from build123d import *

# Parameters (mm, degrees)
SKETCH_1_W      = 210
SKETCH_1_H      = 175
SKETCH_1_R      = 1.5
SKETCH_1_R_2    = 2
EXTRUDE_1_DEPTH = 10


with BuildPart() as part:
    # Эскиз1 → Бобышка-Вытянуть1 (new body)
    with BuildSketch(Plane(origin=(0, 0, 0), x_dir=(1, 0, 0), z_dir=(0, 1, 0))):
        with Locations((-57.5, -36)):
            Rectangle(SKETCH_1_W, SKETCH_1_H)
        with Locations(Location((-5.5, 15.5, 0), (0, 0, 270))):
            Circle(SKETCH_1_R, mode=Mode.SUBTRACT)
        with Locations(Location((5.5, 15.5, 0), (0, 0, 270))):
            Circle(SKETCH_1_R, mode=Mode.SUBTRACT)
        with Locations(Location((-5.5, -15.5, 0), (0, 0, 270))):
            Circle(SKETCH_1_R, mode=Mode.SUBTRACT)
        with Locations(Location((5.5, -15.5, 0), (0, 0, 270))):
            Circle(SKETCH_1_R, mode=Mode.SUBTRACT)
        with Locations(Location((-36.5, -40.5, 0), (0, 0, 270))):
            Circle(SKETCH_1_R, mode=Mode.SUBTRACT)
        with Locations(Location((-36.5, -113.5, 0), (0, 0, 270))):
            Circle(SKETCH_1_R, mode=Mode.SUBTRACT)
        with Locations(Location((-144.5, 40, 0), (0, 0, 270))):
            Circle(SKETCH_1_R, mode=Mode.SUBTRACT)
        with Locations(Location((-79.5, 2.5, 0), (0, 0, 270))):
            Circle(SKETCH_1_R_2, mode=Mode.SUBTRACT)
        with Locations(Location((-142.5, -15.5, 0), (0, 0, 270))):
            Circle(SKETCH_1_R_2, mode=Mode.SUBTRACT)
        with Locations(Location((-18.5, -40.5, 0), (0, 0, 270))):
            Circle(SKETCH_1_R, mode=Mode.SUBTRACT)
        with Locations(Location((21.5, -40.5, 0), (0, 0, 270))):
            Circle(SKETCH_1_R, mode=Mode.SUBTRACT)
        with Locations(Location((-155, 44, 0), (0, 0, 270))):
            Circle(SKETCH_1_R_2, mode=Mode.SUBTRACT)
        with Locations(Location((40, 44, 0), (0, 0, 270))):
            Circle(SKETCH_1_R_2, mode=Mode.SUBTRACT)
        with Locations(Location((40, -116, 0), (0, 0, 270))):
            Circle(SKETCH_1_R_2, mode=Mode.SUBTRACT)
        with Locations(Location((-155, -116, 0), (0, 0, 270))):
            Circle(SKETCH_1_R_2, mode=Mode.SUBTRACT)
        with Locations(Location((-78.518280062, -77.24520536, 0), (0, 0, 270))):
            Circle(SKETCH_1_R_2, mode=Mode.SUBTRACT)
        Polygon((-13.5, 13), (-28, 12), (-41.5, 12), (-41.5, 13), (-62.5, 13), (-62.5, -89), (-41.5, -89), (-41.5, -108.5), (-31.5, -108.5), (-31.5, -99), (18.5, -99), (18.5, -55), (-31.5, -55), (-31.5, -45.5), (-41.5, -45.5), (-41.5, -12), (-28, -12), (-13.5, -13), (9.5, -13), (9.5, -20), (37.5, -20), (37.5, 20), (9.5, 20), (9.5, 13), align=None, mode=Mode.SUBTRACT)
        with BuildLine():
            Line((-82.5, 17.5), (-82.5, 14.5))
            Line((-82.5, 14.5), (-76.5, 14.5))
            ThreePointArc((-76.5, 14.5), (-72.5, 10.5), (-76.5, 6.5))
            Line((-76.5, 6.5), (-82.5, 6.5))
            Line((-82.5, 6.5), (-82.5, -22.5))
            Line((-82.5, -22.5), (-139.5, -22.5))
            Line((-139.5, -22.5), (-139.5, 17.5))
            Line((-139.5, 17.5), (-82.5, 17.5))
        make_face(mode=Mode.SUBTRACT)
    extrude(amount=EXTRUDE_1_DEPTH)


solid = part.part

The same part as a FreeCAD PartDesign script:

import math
import FreeCAD as App
import Part
import Sketcher


def add_polygon(sketch, points):
    """Adds a closed chain of lines whose ends are joined by coincident constraints."""
    first, n = sketch.GeometryCount, len(points)
    for a, b in zip(points, points[1:] + points[:1]):
        sketch.addGeometry(Part.LineSegment(App.Vector(*a, 0), App.Vector(*b, 0)), False)
    for i in range(n):
        sketch.addConstraint(Sketcher.Constraint("Coincident", first + i, 2, first + (i + 1) % n, 1))

doc = App.newDocument("Part")
params = doc.addObject("Spreadsheet::Sheet", "Params")
for row, (alias, value) in enumerate([
    ("sketch1_diameter", "4 mm"),
    ("sketch1_diameter2", "3 mm"),
    ("sketch1_radius", "4 mm"),
    ("sketch1_width", "210 mm"),
    ("sketch1_width2", "23 mm"),
    ("pad1_length", "10 mm"),
], start=1):
    params.set(f"A{row}", alias)
    params.set(f"B{row}", "=" + value)
    params.setAlias(f"B{row}", alias)

body = doc.addObject("PartDesign::Body", "Body")

sketch1 = doc.addObject("Sketcher::SketchObject", "Sketch")
body.addObject(sketch1)
sketch1.AttachmentSupport = (doc.XZ_Plane, [""])
sketch1.MapMode = "FlatFace"
add_polygon(sketch1, [(-162.5, -51.5), (-162.5, 123.5), (47.5, 123.5), (47.5, -51.5)])
sketch1.addGeometry(Part.Circle(App.Vector(-155, 116, 0), App.Vector(0, 0, 1), 2), False)
sketch1.addGeometry(Part.Circle(App.Vector(-78.5, 77.2, 0), App.Vector(0, 0, 1), 2), False)
sketch1.addGeometry(Part.Circle(App.Vector(-36.5, 113.5, 0), App.Vector(0, 0, 1), 1.5), False)
sketch1.addGeometry(Part.Circle(App.Vector(40, 116, 0), App.Vector(0, 0, 1), 2), False)
sketch1.addGeometry(Part.Circle(App.Vector(-36.5, 40.5, 0), App.Vector(0, 0, 1), 1.5), False)
add_polygon(sketch1, [(-28, -12), (-13.5, -13), (9.5, -13), (9.5, -20), (37.5, -20), (37.5, 20), (9.5, 20), (9.5, 13), (-13.5, 13), (-28, 12), (-41.5, 12), (-41.5, 45.5), (-31.5, 45.5), (-31.5, 55), (18.5, 55), (18.5, 99), (-31.5, 99), (-31.5, 108.5), (-41.5, 108.5), (-41.5, 89), (-62.5, 89), (-62.5, -13), (-41.5, -13), (-41.5, -12)])
sketch1.addGeometry(Part.Circle(App.Vector(-18.5, 40.5, 0), App.Vector(0, 0, 1), 1.5), False)
sketch1.addGeometry(Part.Circle(App.Vector(21.5, 40.5, 0), App.Vector(0, 0, 1), 1.5), False)
sketch1.addGeometry(Part.Circle(App.Vector(-142.5, 15.5, 0), App.Vector(0, 0, 1), 2), False)
sketch1.addGeometry(Part.LineSegment(App.Vector(-139.5, -17.5, 0), App.Vector(-82.5, -17.5, 0)), False)
sketch1.addGeometry(Part.LineSegment(App.Vector(-82.5, -17.5, 0), App.Vector(-82.5, -14.5, 0)), False)
sketch1.addGeometry(Part.LineSegment(App.Vector(-82.5, -14.5, 0), App.Vector(-76.5, -14.5, 0)), False)
sketch1.addGeometry(Part.ArcOfCircle(Part.Circle(App.Vector(-76.5, -10.5, 0), App.Vector(0, 0, 1), 4), math.radians(-90), math.radians(90)), False)
sketch1.addGeometry(Part.LineSegment(App.Vector(-76.5, -6.5, 0), App.Vector(-82.5, -6.5, 0)), False)
sketch1.addGeometry(Part.LineSegment(App.Vector(-82.5, -6.5, 0), App.Vector(-82.5, 22.5, 0)), False)
sketch1.addGeometry(Part.LineSegment(App.Vector(-82.5, 22.5, 0), App.Vector(-139.5, 22.5, 0)), False)
sketch1.addGeometry(Part.LineSegment(App.Vector(-139.5, 22.5, 0), App.Vector(-139.5, -17.5, 0)), False)
sketch1.addGeometry(Part.Circle(App.Vector(-79.5, -2.5, 0), App.Vector(0, 0, 1), 2), False)
sketch1.addGeometry(Part.Circle(App.Vector(-155, -44, 0), App.Vector(0, 0, 1), 2), False)
sketch1.addGeometry(Part.Circle(App.Vector(-144.5, -40, 0), App.Vector(0, 0, 1), 1.5), False)
sketch1.addGeometry(Part.Circle(App.Vector(-5.5, 15.5, 0), App.Vector(0, 0, 1), 1.5), False)
sketch1.addGeometry(Part.Circle(App.Vector(5.5, 15.5, 0), App.Vector(0, 0, 1), 1.5), False)
sketch1.addGeometry(Part.Circle(App.Vector(-5.5, -15.5, 0), App.Vector(0, 0, 1), 1.5), False)
sketch1.addGeometry(Part.Circle(App.Vector(5.5, -15.5, 0), App.Vector(0, 0, 1), 1.5), False)
sketch1.addGeometry(Part.Circle(App.Vector(40, -44, 0), App.Vector(0, 0, 1), 2), False)
sketch1.addConstraint(Sketcher.Constraint("Coincident", 36, 2, 37, 1))
sketch1.addConstraint(Sketcher.Constraint("Coincident", 37, 2, 38, 1))
sketch1.addConstraint(Sketcher.Constraint("Tangent", 38, 2, 39, 1))
sketch1.addConstraint(Sketcher.Constraint("Tangent", 39, 2, 40, 1))
sketch1.addConstraint(Sketcher.Constraint("Coincident", 40, 2, 41, 1))
sketch1.addConstraint(Sketcher.Constraint("Coincident", 41, 2, 42, 1))
sketch1.addConstraint(Sketcher.Constraint("Coincident", 42, 2, 43, 1))
sketch1.addConstraint(Sketcher.Constraint("Coincident", 43, 2, 36, 1))
sketch1.addConstraint(Sketcher.Constraint("Vertical", 0))
sketch1.addConstraint(Sketcher.Constraint("Horizontal", 1))
sketch1.addConstraint(Sketcher.Constraint("Vertical", 2))
sketch1.addConstraint(Sketcher.Constraint("Horizontal", 3))
sketch1.addConstraint(Sketcher.Constraint("Horizontal", 10))
sketch1.addConstraint(Sketcher.Constraint("Vertical", 11))
sketch1.addConstraint(Sketcher.Constraint("Horizontal", 12))
sketch1.addConstraint(Sketcher.Constraint("Vertical", 13))
sketch1.addConstraint(Sketcher.Constraint("Horizontal", 14))
sketch1.addConstraint(Sketcher.Constraint("Vertical", 15))
sketch1.addConstraint(Sketcher.Constraint("Horizontal", 16))
sketch1.addConstraint(Sketcher.Constraint("Horizontal", 18))
sketch1.addConstraint(Sketcher.Constraint("Vertical", 19))
sketch1.addConstraint(Sketcher.Constraint("Horizontal", 20))
sketch1.addConstraint(Sketcher.Constraint("Vertical", 21))
sketch1.addConstraint(Sketcher.Constraint("Horizontal", 22))
sketch1.addConstraint(Sketcher.Constraint("Vertical", 23))
sketch1.addConstraint(Sketcher.Constraint("Horizontal", 24))
sketch1.addConstraint(Sketcher.Constraint("Vertical", 25))
sketch1.addConstraint(Sketcher.Constraint("Horizontal", 26))
sketch1.addConstraint(Sketcher.Constraint("Vertical", 27))
sketch1.addConstraint(Sketcher.Constraint("Horizontal", 28))
sketch1.addConstraint(Sketcher.Constraint("Vertical", 29))
sketch1.addConstraint(Sketcher.Constraint("Horizontal", 30))
sketch1.addConstraint(Sketcher.Constraint("Vertical", 31))
sketch1.addConstraint(Sketcher.Constraint("Horizontal", 32))
sketch1.addConstraint(Sketcher.Constraint("Horizontal", 36))
sketch1.addConstraint(Sketcher.Constraint("Vertical", 37))
sketch1.addConstraint(Sketcher.Constraint("Horizontal", 38))
sketch1.addConstraint(Sketcher.Constraint("Horizontal", 40))
sketch1.addConstraint(Sketcher.Constraint("Vertical", 41))
sketch1.addConstraint(Sketcher.Constraint("Horizontal", 42))
sketch1.addConstraint(Sketcher.Constraint("Vertical", 43))
sketch1.addConstraint(Sketcher.Constraint("Equal", 4, 5))
sketch1.addConstraint(Sketcher.Constraint("Equal", 5, 7))
sketch1.addConstraint(Sketcher.Constraint("Equal", 6, 8))
sketch1.addConstraint(Sketcher.Constraint("Equal", 8, 33))
sketch1.addConstraint(Sketcher.Constraint("Equal", 33, 34))
sketch1.addConstraint(Sketcher.Constraint("Equal", 7, 35))
sketch1.addConstraint(Sketcher.Constraint("Equal", 35, 44))
sketch1.addConstraint(Sketcher.Constraint("Equal", 44, 45))
sketch1.addConstraint(Sketcher.Constraint("Equal", 34, 46))
sketch1.addConstraint(Sketcher.Constraint("Equal", 46, 47))
sketch1.addConstraint(Sketcher.Constraint("Equal", 47, 48))
sketch1.addConstraint(Sketcher.Constraint("Equal", 48, 49))
sketch1.addConstraint(Sketcher.Constraint("Equal", 49, 50))
sketch1.addConstraint(Sketcher.Constraint("Equal", 45, 51))
sketch1.addConstraint(Sketcher.Constraint("Symmetric", 48, 3, 49, 3, -1, 1))
sketch1.addConstraint(Sketcher.Constraint("Symmetric", 47, 3, 50, 3, -1, 1))
sketch1.addConstraint(Sketcher.Constraint("Symmetric", 47, 3, 48, 3, -2))
sketch1.addConstraint(Sketcher.Constraint("Symmetric", 11, 2, 14, 2, -1))
sketch1.addConstraint(Sketcher.Constraint("Symmetric", 9, 2, 16, 2, -1))
sketch1.addConstraint(Sketcher.Constraint("Symmetric", 18, 2, 31, 2, -1))
sketch1.addConstraint(Sketcher.Constraint("Horizontal", 4, 3, 7, 3))
sketch1.addConstraint(Sketcher.Constraint("Horizontal", 8, 3, 33, 3))
sketch1.addConstraint(Sketcher.Constraint("Horizontal", 33, 3, 34, 3))
sketch1.addConstraint(Sketcher.Constraint("Horizontal", 35, 3, 47, 3))
sketch1.addConstraint(Sketcher.Constraint("Horizontal", 45, 3, 51, 3))
sketch1.addConstraint(Sketcher.Constraint("Horizontal", 10, 2, 29, 2))
sketch1.addConstraint(Sketcher.Constraint("Vertical", 6, 3, 8, 3))
sketch1.addConstraint(Sketcher.Constraint("Vertical", 4, 3, 45, 3))
sketch1.addConstraint(Sketcher.Constraint("Vertical", 7, 3, 51, 3))
sketch1.addConstraint(Sketcher.Constraint("Vertical", 21, 2, 24, 2))
sketch1.addConstraint(Sketcher.Constraint("Vertical", 19, 2, 26, 2))
sketch1.addConstraint(Sketcher.Constraint("Vertical", 17, 2, 32, 2))
sketch1.addConstraint(Sketcher.Constraint("Vertical", 37, 2, 40, 2))
sketch1.addConstraint(Sketcher.Constraint("Equal", 21, 25))
sketch1.addConstraint(Sketcher.Constraint("Equal", 13, 43))
sketch1.addConstraint(Sketcher.Constraint("Diameter", 4, 4.0))
sketch1.addConstraint(Sketcher.Constraint("Diameter", 6, 3.0))
sketch1.addConstraint(Sketcher.Constraint("Radius", 39, 4.0))
sketch1.addConstraint(Sketcher.Constraint("DistanceX", 1, 1, 1, 2, 210.0))
sketch1.addConstraint(Sketcher.Constraint("DistanceX", 10, 1, 10, 2, 23.0))
sketch1.addConstraint(Sketcher.Constraint("DistanceX", 12, 1, 12, 2, 28.0))
sketch1.addConstraint(Sketcher.Constraint("DistanceX", 20, 1, 20, 2, 10.0))
sketch1.addConstraint(Sketcher.Constraint("DistanceX", 22, 1, 22, 2, 50.0))
sketch1.addConstraint(Sketcher.Constraint("DistanceX", 28, 2, 28, 1, 21.0))
sketch1.addConstraint(Sketcher.Constraint("DistanceX", 36, 1, 36, 2, 57.0))
sketch1.addConstraint(Sketcher.Constraint("DistanceX", 38, 1, 38, 2, 6.0))
sketch1.addConstraint(Sketcher.Constraint("DistanceY", 0, 1, 0, 2, 175.0))
sketch1.addConstraint(Sketcher.Constraint("DistanceY", 11, 2, 11, 1, 7.0))
sketch1.addConstraint(Sketcher.Constraint("DistanceY", 13, 1, 13, 2, 40.0))
sketch1.addConstraint(Sketcher.Constraint("DistanceY", 23, 1, 23, 2, 44.0))
sketch1.addConstraint(Sketcher.Constraint("DistanceY", 29, 2, 29, 1, 102.0))
sketch1.addConstraint(Sketcher.Constraint("DistanceY", 31, 1, 31, 2, 1.0))
sketch1.addConstraint(Sketcher.Constraint("DistanceY", 37, 1, 37, 2, 3.0))
sketch1.addConstraint(Sketcher.Constraint("DistanceX", 18, 2, 18, 1, 13.5))
sketch1.addConstraint(Sketcher.Constraint("DistanceY", 19, 1, 19, 2, 33.5))
sketch1.addConstraint(Sketcher.Constraint("DistanceY", 21, 1, 21, 2, 9.5))
sketch1.addConstraint(Sketcher.Constraint("DistanceX", 4, 3, -1, 1, 155.0))
sketch1.addConstraint(Sketcher.Constraint("DistanceY", -1, 1, 4, 3, 116.0))
sketch1.addConstraint(Sketcher.Constraint("DistanceX", -1, 1, 7, 3, 40.0))
sketch1.addConstraint(Sketcher.Constraint("DistanceY", 45, 3, -1, 1, 44.0))
sketch1.addConstraint(Sketcher.Constraint("DistanceY", 46, 3, -1, 1, 40.0))
sketch1.addConstraint(Sketcher.Constraint("DistanceX", 17, 2, -1, 1, 28.0))
sketch1.addConstraint(Sketcher.Constraint("DistanceY", 8, 3, 6, 3, 73.0))
sketch1.addConstraint(Sketcher.Constraint("DistanceX", 8, 3, 33, 3, 18.0))
sketch1.addConstraint(Sketcher.Constraint("DistanceX", 33, 3, 34, 3, 40.0))
sketch1.addConstraint(Sketcher.Constraint("DistanceX", 35, 3, 8, 3, 106.0))
sketch1.addConstraint(Sketcher.Constraint("DistanceY", 35, 3, 8, 3, 25.0))
sketch1.addConstraint(Sketcher.Constraint("DistanceX", 39, 3, 8, 3, 40.0))
sketch1.addConstraint(Sketcher.Constraint("DistanceY", 39, 3, 8, 3, 51.0))
sketch1.addConstraint(Sketcher.Constraint("DistanceX", 44, 3, 39, 3, 3.0))
sketch1.addConstraint(Sketcher.Constraint("DistanceY", 39, 3, 44, 3, 8.0))
sketch1.addConstraint(Sketcher.Constraint("DistanceX", 46, 3, 35, 3, 2.0))
sketch1.addConstraint(Sketcher.Constraint("DistanceX", 33, 3, 47, 3, 13.0))
sketch1.addConstraint(Sketcher.Constraint("DistanceX", 47, 3, 48, 3, 11.0))
sketch1.addConstraint(Sketcher.Constraint("DistanceY", 49, 3, 47, 3, 31.0))
sketch1.addConstraint(Sketcher.Constraint("DistanceX", 0, 2, 35, 3, 20.0))
sketch1.addConstraint(Sketcher.Constraint("DistanceY", 35, 3, 0, 2, 108.0))
sketch1.addConstraint(Sketcher.Constraint("DistanceX", 9, 2, 49, 3, 8.0))
sketch1.addConstraint(Sketcher.Constraint("DistanceX", 5, 3, -1, 1, 78.51828))
sketch1.addConstraint(Sketcher.Constraint("DistanceY", -1, 1, 5, 3, 77.245205))
sketch1.setExpression("Constraints[104]", "Params.sketch1_diameter")
sketch1.setExpression("Constraints[105]", "Params.sketch1_diameter2")
sketch1.setExpression("Constraints[106]", "Params.sketch1_radius")
sketch1.setExpression("Constraints[107]", "Params.sketch1_width")
sketch1.setExpression("Constraints[108]", "Params.sketch1_width2")
pad1 = doc.addObject("PartDesign::Pad", "Pad")
body.addObject(pad1)
pad1.Profile = sketch1
pad1.setExpression("Length", "Params.pad1_length")
pad1.Reversed = True

doc.recompute()
